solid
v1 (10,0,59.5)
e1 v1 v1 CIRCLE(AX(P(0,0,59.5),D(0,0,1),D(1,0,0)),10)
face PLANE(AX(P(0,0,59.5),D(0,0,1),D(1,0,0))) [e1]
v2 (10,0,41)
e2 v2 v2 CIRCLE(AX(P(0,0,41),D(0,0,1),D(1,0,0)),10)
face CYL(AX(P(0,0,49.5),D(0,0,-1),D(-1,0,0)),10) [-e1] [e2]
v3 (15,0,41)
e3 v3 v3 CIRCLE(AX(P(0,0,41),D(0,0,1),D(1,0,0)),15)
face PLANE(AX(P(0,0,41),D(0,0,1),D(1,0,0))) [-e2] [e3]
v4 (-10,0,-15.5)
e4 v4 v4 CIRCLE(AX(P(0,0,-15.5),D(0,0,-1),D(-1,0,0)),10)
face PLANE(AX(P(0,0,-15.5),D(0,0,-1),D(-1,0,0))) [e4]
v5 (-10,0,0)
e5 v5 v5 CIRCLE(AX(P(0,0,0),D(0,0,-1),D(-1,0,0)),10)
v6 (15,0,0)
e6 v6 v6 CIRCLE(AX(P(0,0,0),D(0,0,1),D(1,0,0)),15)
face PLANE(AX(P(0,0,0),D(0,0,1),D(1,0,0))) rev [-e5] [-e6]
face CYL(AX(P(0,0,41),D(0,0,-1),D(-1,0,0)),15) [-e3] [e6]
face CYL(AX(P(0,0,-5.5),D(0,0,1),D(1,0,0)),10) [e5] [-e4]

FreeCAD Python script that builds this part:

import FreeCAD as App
import Part
import Sketcher

doc = App.newDocument("Part")
body = doc.addObject("PartDesign::Body", "Body")

# Sketch on XY plane
sketch1 = body.newObject("Sketcher::SketchObject", "Sketch")
sketch1.AttachmentSupport = (doc.getObject("XY_Plane"), [""])
sketch1.MapMode = "FlatFace"
sketch1.addGeometry(Part.Circle(App.Vector(0, 0, 0), App.Vector(0, 0, 1), 15), False)
sketch1.addConstraint([
    Sketcher.Constraint("Coincident", 0, 3, -1, 1),
    Sketcher.Constraint("Diameter", 0, 30.0),
])
pad1 = body.newObject("PartDesign::Pad", "Pad")
pad1.Profile = sketch1
pad1.Length = 41

# Sketch on XY plane
sketch2 = body.newObject("Sketcher::SketchObject", "Sketch001")
sketch2.AttachmentSupport = (doc.getObject("XY_Plane"), [""])
sketch2.MapMode = "FlatFace"
sketch2.AttachmentOffset = App.Placement(App.Vector(0, 0, 41), App.Rotation())
sketch2.addGeometry(Part.Circle(App.Vector(0, 0, 0), App.Vector(0, 0, 1), 10), False)
sketch2.addConstraint([
    Sketcher.Constraint("Coincident", 0, 3, -1, 1),
    Sketcher.Constraint("Diameter", 0, 20.0),
])
pad2 = body.newObject("PartDesign::Pad", "Pad001")
pad2.Profile = sketch2
pad2.Length = 8.5

# Sketch on XY plane
sketch3 = body.newObject("Sketcher::SketchObject", "Sketch002")
sketch3.AttachmentSupport = (doc.getObject("XY_Plane"), [""])
sketch3.MapMode = "FlatFace"
sketch3.AttachmentOffset = App.Placement(App.Vector(0, 0, -5.5), App.Rotation())
sketch3.addGeometry(Part.Circle(App.Vector(0, 0, 0), App.Vector(0, 0, 1), 10), False)
sketch3.addConstraint([
    Sketcher.Constraint("Coincident", 0, 3, -1, 1),
    Sketcher.Constraint("Diameter", 0, 20.0),
])
pad3 = body.newObject("PartDesign::Pad", "Pad002")
pad3.Profile = sketch3
pad3.Length = 5.5

# Sketch on XY plane
sketch4 = body.newObject("Sketcher::SketchObject", "Sketch003")
sketch4.AttachmentSupport = (doc.getObject("XY_Plane"), [""])
sketch4.MapMode = "FlatFace"
sketch4.AttachmentOffset = App.Placement(App.Vector(0, 0, 49.5), App.Rotation())
sketch4.addGeometry(Part.Circle(App.Vector(0, 0, 0), App.Vector(0, 0, 1), 10), False)
sketch4.addConstraint([
    Sketcher.Constraint("Coincident", 0, 3, -1, 1),
    Sketcher.Constraint("Diameter", 0, 20.0),
])
pad4 = body.newObject("PartDesign::Pad", "Pad003")
pad4.Profile = sketch4
pad4.Length = 10

# Sketch on XY plane
sketch5 = body.newObject("Sketcher::SketchObject", "Sketch004")
sketch5.AttachmentSupport = (doc.getObject("XY_Plane"), [""])
sketch5.MapMode = "FlatFace"
sketch5.AttachmentOffset = App.Placement(App.Vector(0, 0, -15.5), App.Rotation())
sketch5.addGeometry(Part.Circle(App.Vector(0, 0, 0), App.Vector(0, 0, 1), 10), False)
sketch5.addConstraint([
    Sketcher.Constraint("Coincident", 0, 3, -1, 1),
    Sketcher.Constraint("Diameter", 0, 20.0),
])
pad5 = body.newObject("PartDesign::Pad", "Pad004")
pad5.Profile = sketch5
pad5.Length = 10

doc.recompute()
